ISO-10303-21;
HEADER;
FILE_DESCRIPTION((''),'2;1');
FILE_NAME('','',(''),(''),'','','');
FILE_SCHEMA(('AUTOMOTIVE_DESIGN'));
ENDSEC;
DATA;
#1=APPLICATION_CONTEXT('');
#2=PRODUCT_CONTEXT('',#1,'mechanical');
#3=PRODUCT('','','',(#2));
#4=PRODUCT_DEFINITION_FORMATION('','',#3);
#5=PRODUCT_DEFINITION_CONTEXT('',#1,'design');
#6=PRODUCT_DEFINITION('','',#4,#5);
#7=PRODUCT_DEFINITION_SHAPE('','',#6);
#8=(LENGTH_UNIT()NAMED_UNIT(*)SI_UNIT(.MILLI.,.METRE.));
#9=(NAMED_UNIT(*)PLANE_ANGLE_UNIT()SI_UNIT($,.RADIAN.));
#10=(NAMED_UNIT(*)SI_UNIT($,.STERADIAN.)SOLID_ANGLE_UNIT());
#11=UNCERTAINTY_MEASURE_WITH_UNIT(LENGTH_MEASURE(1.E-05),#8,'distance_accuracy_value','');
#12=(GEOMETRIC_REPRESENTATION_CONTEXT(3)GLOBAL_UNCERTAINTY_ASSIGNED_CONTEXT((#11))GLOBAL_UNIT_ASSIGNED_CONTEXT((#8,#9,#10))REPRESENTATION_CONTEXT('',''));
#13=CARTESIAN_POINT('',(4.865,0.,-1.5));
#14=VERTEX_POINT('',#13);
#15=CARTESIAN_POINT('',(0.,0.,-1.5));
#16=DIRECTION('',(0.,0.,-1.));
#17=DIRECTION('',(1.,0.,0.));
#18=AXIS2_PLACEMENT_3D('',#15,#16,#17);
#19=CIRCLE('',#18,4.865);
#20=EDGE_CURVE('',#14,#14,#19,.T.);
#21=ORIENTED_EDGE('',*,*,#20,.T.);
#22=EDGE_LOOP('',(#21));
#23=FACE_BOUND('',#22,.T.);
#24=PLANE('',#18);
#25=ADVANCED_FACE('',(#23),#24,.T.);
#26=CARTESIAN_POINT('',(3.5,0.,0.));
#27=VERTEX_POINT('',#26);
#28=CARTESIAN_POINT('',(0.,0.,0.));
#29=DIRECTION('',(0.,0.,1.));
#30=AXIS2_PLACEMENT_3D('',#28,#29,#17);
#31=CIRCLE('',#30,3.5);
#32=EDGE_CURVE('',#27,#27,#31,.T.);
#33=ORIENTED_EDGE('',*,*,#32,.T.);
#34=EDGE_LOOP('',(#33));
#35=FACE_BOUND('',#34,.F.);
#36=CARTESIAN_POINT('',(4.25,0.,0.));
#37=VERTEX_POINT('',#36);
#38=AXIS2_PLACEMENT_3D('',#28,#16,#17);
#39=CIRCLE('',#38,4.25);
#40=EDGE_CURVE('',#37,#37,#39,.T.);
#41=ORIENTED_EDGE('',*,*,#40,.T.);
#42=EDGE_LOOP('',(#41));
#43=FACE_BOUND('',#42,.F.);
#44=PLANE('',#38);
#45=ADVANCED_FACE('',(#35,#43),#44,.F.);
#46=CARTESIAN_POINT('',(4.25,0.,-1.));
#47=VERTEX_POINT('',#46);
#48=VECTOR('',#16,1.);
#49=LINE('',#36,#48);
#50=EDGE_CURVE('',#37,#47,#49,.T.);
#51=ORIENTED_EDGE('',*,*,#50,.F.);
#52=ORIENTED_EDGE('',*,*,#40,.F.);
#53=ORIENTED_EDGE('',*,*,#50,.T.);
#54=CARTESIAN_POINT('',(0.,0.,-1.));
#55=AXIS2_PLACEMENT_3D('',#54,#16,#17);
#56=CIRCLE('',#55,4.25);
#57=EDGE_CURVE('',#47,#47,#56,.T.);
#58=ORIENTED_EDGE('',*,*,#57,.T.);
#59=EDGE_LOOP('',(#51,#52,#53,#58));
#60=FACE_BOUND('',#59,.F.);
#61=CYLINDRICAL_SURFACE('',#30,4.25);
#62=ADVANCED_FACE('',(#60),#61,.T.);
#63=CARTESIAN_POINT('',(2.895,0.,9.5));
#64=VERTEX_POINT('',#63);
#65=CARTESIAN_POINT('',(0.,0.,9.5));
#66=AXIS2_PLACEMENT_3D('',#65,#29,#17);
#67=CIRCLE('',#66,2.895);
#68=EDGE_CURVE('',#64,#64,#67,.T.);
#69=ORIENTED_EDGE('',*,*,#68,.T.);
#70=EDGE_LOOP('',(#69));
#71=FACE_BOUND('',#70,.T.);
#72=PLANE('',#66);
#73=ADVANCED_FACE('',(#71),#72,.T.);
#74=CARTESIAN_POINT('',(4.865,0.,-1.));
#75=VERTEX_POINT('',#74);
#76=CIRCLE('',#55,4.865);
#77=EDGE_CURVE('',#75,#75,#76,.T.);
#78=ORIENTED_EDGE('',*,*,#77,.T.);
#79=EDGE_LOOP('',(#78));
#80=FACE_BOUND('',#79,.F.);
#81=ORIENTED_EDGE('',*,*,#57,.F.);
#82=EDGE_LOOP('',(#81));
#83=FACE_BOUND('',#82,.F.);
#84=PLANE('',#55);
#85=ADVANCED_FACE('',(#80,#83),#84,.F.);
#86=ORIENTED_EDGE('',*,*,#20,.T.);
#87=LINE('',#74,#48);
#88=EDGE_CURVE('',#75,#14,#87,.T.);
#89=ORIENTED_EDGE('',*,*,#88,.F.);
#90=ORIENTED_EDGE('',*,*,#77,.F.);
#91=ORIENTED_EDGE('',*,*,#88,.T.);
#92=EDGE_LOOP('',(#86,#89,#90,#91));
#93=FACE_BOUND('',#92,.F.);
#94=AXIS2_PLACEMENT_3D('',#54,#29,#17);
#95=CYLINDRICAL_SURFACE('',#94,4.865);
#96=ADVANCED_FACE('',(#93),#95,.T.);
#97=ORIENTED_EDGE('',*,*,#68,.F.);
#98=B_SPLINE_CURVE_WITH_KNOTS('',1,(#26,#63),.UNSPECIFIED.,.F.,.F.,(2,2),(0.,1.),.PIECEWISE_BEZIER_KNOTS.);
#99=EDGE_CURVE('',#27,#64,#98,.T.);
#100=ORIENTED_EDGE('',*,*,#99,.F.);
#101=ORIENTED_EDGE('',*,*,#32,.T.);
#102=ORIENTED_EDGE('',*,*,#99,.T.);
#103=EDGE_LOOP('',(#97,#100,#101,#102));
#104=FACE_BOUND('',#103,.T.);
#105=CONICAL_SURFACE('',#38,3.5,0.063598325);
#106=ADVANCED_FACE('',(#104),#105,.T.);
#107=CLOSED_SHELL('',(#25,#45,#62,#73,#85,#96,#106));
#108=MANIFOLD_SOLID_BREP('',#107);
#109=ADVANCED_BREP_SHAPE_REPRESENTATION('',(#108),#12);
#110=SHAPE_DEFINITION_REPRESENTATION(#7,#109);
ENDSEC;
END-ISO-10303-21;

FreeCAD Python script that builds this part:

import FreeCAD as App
import Part
import Sketcher
Q = App.Units.Quantity

doc = App.newDocument("Part")
body = doc.addObject("PartDesign::Body", "Body")

sketch1 = doc.addObject("Sketcher::SketchObject", "Sketch")
body.addObject(sketch1)
sketch1.AttachmentSupport = (doc.XY_Plane, [""])
sketch1.MapMode = "FlatFace"
sketch1.addGeometry(Part.Circle(App.Vector(0, 0, 0), App.Vector(0, 0, 1), 3.5), False)
sketch1.addConstraint(Sketcher.Constraint("Coincident", 0, 3, -1, 1))
sketch1.addConstraint(Sketcher.Constraint("Diameter", 0, Q("7 mm")))

sketch2 = doc.addObject("Sketcher::SketchObject", "Sketch001")
body.addObject(sketch2)
sketch2.AttachmentSupport = (doc.XY_Plane, [""])
sketch2.MapMode = "FlatFace"
sketch2.AttachmentOffset = App.Placement(App.Vector(0, 0, 9.5), App.Rotation())
sketch2.addGeometry(Part.Circle(App.Vector(0, 0, 0), App.Vector(0, 0, 1), 2.9), False)
sketch2.addConstraint(Sketcher.Constraint("Coincident", 0, 3, -1, 1))
sketch2.addConstraint(Sketcher.Constraint("Diameter", 0, Q("5.79 mm")))

additiveloft = doc.addObject("PartDesign::AdditiveLoft", "AdditiveLoft")
body.addObject(additiveloft)
additiveloft.Profile = sketch1
additiveloft.Sections = [sketch2]

sketch3 = doc.addObject("Sketcher::SketchObject", "Sketch002")
body.addObject(sketch3)
sketch3.AttachmentSupport = (doc.XY_Plane, [""])
sketch3.MapMode = "FlatFace"
sketch3.addGeometry(Part.Circle(App.Vector(0, 0, 0), App.Vector(0, 0, 1), 4.2), False)
sketch3.addConstraint(Sketcher.Constraint("Coincident", 0, 3, -1, 1))
sketch3.addConstraint(Sketcher.Constraint("Diameter", 0, Q("8.5 mm")))
pad1 = doc.addObject("PartDesign::Pad", "Pad")
body.addObject(pad1)
pad1.Profile = sketch3
pad1.Length = 1
pad1.Reversed = True

sketch4 = doc.addObject("Sketcher::SketchObject", "Sketch003")
body.addObject(sketch4)
sketch4.AttachmentSupport = (doc.XY_Plane, [""])
sketch4.MapMode = "FlatFace"
sketch4.AttachmentOffset = App.Placement(App.Vector(0, 0, -1), App.Rotation())
sketch4.addGeometry(Part.Circle(App.Vector(0, 0, 0), App.Vector(0, 0, 1), 4.9), False)
sketch4.addConstraint(Sketcher.Constraint("Coincident", 0, 3, -1, 1))
sketch4.addConstraint(Sketcher.Constraint("Diameter", 0, Q("9.73 mm")))
pad2 = doc.addObject("PartDesign::Pad", "Pad001")
body.addObject(pad2)
pad2.Profile = sketch4
pad2.Length = 0.5
pad2.Reversed = True

doc.recompute()
